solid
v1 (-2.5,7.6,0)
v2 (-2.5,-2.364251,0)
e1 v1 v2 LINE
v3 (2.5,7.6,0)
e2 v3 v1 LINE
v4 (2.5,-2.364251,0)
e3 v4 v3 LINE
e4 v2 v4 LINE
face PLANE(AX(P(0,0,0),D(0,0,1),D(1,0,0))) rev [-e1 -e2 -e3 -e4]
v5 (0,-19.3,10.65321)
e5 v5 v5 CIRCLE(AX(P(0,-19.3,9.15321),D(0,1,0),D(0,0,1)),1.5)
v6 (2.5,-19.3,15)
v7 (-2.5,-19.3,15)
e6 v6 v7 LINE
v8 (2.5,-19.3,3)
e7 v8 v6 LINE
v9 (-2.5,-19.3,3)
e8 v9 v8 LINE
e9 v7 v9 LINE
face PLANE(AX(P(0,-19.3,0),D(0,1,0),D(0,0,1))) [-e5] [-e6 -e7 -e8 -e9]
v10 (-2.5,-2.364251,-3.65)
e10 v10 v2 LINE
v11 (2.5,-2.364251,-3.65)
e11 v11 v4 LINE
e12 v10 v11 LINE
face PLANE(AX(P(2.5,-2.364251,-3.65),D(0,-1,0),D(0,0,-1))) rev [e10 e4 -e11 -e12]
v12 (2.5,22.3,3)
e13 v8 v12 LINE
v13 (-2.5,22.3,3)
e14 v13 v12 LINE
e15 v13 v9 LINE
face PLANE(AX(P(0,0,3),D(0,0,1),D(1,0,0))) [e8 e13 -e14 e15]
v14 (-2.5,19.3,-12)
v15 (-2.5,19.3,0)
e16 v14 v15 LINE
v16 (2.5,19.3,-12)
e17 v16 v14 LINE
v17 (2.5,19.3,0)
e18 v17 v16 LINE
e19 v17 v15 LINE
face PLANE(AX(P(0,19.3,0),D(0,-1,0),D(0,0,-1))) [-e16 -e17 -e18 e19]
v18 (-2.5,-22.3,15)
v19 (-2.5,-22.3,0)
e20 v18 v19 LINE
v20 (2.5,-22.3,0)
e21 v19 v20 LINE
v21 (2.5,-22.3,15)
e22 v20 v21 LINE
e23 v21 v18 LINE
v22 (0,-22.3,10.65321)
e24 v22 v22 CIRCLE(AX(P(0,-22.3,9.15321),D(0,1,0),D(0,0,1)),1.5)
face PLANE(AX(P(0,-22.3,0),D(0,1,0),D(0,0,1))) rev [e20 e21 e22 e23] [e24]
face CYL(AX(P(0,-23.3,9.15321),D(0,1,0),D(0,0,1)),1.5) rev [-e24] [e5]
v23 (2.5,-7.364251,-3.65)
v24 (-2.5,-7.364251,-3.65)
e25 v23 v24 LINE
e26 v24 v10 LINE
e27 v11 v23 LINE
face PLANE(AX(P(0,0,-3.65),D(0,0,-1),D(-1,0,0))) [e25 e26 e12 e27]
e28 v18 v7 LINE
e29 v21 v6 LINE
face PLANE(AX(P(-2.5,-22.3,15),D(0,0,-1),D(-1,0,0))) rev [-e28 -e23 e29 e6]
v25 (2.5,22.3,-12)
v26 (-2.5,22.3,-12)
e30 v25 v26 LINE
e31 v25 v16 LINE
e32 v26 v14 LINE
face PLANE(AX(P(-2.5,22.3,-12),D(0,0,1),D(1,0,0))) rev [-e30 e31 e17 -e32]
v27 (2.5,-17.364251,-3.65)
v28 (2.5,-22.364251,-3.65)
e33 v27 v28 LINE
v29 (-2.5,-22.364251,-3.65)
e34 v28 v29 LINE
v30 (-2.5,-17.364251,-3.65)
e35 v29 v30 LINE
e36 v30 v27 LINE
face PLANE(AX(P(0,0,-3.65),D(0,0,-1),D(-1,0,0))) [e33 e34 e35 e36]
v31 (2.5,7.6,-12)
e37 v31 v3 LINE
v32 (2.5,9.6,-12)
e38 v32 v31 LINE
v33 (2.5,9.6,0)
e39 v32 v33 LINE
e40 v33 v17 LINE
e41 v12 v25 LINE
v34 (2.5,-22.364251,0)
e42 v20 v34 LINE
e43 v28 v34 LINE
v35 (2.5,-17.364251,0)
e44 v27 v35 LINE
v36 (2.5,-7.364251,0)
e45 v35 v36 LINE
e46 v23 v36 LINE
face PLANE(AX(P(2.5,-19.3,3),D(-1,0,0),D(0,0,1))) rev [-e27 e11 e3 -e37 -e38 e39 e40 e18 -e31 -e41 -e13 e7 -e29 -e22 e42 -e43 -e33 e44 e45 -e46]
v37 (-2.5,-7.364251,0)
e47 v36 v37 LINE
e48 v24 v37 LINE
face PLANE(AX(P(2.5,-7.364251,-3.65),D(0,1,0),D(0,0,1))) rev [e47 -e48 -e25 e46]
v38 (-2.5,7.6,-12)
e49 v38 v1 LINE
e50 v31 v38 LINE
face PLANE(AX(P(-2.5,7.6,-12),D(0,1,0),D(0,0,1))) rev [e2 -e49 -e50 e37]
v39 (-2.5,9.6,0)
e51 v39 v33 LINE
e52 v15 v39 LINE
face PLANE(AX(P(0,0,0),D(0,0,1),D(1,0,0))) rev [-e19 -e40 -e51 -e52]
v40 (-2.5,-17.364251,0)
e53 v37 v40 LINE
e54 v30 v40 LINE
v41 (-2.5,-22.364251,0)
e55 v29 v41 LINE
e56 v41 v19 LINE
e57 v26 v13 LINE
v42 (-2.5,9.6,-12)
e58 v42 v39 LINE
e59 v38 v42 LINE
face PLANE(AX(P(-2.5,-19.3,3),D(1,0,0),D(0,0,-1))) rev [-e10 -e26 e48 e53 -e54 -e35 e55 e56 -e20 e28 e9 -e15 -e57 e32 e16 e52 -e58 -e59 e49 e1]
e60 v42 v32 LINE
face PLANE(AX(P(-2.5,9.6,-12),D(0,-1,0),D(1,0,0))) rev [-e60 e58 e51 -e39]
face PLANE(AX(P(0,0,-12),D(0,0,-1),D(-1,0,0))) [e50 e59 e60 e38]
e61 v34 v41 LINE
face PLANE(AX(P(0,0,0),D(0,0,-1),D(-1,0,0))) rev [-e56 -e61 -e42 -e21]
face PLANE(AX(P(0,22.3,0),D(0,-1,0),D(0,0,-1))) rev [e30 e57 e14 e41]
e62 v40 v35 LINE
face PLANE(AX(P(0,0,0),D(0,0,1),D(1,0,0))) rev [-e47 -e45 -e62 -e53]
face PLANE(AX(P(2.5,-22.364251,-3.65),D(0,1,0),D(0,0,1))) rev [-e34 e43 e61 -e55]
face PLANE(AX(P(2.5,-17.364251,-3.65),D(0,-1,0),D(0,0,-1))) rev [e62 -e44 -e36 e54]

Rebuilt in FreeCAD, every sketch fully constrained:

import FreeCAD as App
import Part
import Sketcher

V = App.Vector
Q = App.Units.Quantity

doc = App.newDocument("Part")
params = doc.addObject("Spreadsheet::Sheet", "Params")
for row, (alias, value) in enumerate([
    ("sketch1_width", "5 mm"),
    ("sketch1_height", "38.6 mm"),
    ("pad1_length", "3 mm"),
    ("sketch2_width", "5 mm"),
    ("sketch2_height", "15 mm"),
    ("pad2_length", "3 mm"),
    ("sketch3_diameter", "3 mm"),
    ("pocket1_length", "4 mm"),
    ("sketch4_width", "5 mm"),
    ("sketch4_height", "15 mm"),
    ("pad3_length", "3 mm"),
    ("sketch5_width", "5 mm"),
    ("sketch5_height", "2 mm"),
    ("pad4_length", "12 mm"),
    ("sketch6_width", "5 mm"),
    ("pad5_length", "3.65 mm"),
], start=1):
    params.set(f"A{row}", alias)
    params.set(f"B{row}", "=" + value)
    params.setAlias(f"B{row}", alias)

body = doc.addObject("PartDesign::Body", "Body")

# Sketch on XY plane
sketch1 = body.newObject("Sketcher::SketchObject", "Sketch")
sketch1.AttachmentSupport = (doc.getObject("XY_Plane"), [""])
sketch1.MapMode = "FlatFace"
sketch1.addGeometry([
    Part.LineSegment(V(-2, 19, 0), V(-2, -19, 0)),
    Part.LineSegment(V(-2, -19, 0), V(2, -19, 0)),
    Part.LineSegment(V(2, -19, 0), V(2, 19, 0)),
    Part.LineSegment(V(2, 19, 0), V(-2, 19, 0)),
], False)
sketch1.addConstraint([
    Sketcher.Constraint("Coincident", 0, 2, 1, 1),
    Sketcher.Constraint("Coincident", 1, 2, 2, 1),
    Sketcher.Constraint("Coincident", 2, 2, 3, 1),
    Sketcher.Constraint("Coincident", 3, 2, 0, 1),
    Sketcher.Constraint("Vertical", 0),
    Sketcher.Constraint("Horizontal", 1),
    Sketcher.Constraint("Vertical", 2),
    Sketcher.Constraint("Horizontal", 3),
    Sketcher.Constraint("Symmetric", 0, 2, 2, 2, -1, 1),
    Sketcher.Constraint("DistanceX", 1, 1, 1, 2, Q("5 mm")),
    Sketcher.Constraint("DistanceY", 0, 2, 0, 1, Q("38.6 mm")),
])
sketch1.setExpression("Constraints[9]", "Params.sketch1_width")
sketch1.setExpression("Constraints[10]", "Params.sketch1_height")
pad1 = body.newObject("PartDesign::Pad", "Pad")
pad1.Profile = sketch1
pad1.setExpression("Length", "Params.pad1_length")

# Sketch on XZ plane
sketch2 = body.newObject("Sketcher::SketchObject", "Sketch001")
sketch2.AttachmentSupport = (doc.getObject("XZ_Plane"), [""])
sketch2.MapMode = "FlatFace"
sketch2.AttachmentOffset = App.Placement(V(0, 0, 19.3), App.Rotation())
sketch2.addGeometry([
    Part.LineSegment(V(-2, 15, 0), V(-2, 0, 0)),
    Part.LineSegment(V(-2, 0, 0), V(2, 0, 0)),
    Part.LineSegment(V(2, 0, 0), V(2, 15, 0)),
    Part.LineSegment(V(2, 15, 0), V(-2, 15, 0)),
], False)
sketch2.addConstraint([
    Sketcher.Constraint("Coincident", 0, 2, 1, 1),
    Sketcher.Constraint("Coincident", 1, 2, 2, 1),
    Sketcher.Constraint("Coincident", 2, 2, 3, 1),
    Sketcher.Constraint("Coincident", 3, 2, 0, 1),
    Sketcher.Constraint("Vertical", 0),
    Sketcher.Constraint("Horizontal", 1),
    Sketcher.Constraint("Vertical", 2),
    Sketcher.Constraint("Horizontal", 3),
    Sketcher.Constraint("Symmetric", 0, 2, 1, 2, -1, 1),
    Sketcher.Constraint("DistanceX", 1, 1, 1, 2, Q("5 mm")),
    Sketcher.Constraint("DistanceY", 0, 2, 0, 1, Q("15 mm")),
])
sketch2.setExpression("Constraints[9]", "Params.sketch2_width")
sketch2.setExpression("Constraints[10]", "Params.sketch2_height")
pad2 = body.newObject("PartDesign::Pad", "Pad001")
pad2.Profile = sketch2
pad2.setExpression("Length", "Params.pad2_length")

# Sketch on XZ plane
sketch3 = body.newObject("Sketcher::SketchObject", "Sketch002")
sketch3.AttachmentSupport = (doc.getObject("XZ_Plane"), [""])
sketch3.MapMode = "FlatFace"
sketch3.AttachmentOffset = App.Placement(V(0, 0, 19.3), App.Rotation())
sketch3.addGeometry(Part.Circle(V(0, 9.2, 0), V(0, 0, 1), 1.5), False)
sketch3.addConstraint([
    Sketcher.Constraint("PointOnObject", 0, 3, -2),
    Sketcher.Constraint("Diameter", 0, Q("3 mm")),
    Sketcher.Constraint("DistanceY", -1, 1, 0, 3, Q("9.15321 mm")),
])
sketch3.setExpression("Constraints[1]", "Params.sketch3_diameter")
pocket1 = body.newObject("PartDesign::Pocket", "Pocket")
pocket1.Profile = sketch3
pocket1.setExpression("Length", "Params.pocket1_length")
pocket1.Reversed = True

# Sketch on XZ plane
sketch4 = body.newObject("Sketcher::SketchObject", "Sketch003")
sketch4.AttachmentSupport = (doc.getObject("XZ_Plane"), [""])
sketch4.MapMode = "FlatFace"
sketch4.AttachmentOffset = App.Placement(V(0, 0, -19.3), App.Rotation())
sketch4.addGeometry([
    Part.LineSegment(V(-2, -12, 0), V(-2, 3, 0)),
    Part.LineSegment(V(-2, 3, 0), V(2, 3, 0)),
    Part.LineSegment(V(2, 3, 0), V(2, -12, 0)),
    Part.LineSegment(V(2, -12, 0), V(-2, -12, 0)),
], False)
sketch4.addConstraint([
    Sketcher.Constraint("Coincident", 0, 2, 1, 1),
    Sketcher.Constraint("Coincident", 1, 2, 2, 1),
    Sketcher.Constraint("Coincident", 2, 2, 3, 1),
    Sketcher.Constraint("Coincident", 3, 2, 0, 1),
    Sketcher.Constraint("Vertical", 0),
    Sketcher.Constraint("Horizontal", 1),
    Sketcher.Constraint("Vertical", 2),
    Sketcher.Constraint("Horizontal", 3),
    Sketcher.Constraint("DistanceX", 1, 1, 1, 2, Q("5 mm")),
    Sketcher.Constraint("DistanceY", 0, 1, 0, 2, Q("15 mm")),
    Sketcher.Constraint("DistanceY", -1, 1, 0, 2, Q("3 mm")),
    Sketcher.Constraint("DistanceX", 0, 2, -1, 1, Q("2.5 mm")),
])
sketch4.setExpression("Constraints[8]", "Params.sketch4_width")
sketch4.setExpression("Constraints[9]", "Params.sketch4_height")
pad3 = body.newObject("PartDesign::Pad", "Pad002")
pad3.Profile = sketch4
pad3.setExpression("Length", "Params.pad3_length")
pad3.Reversed = True

# Sketch on XY plane
sketch5 = body.newObject("Sketcher::SketchObject", "Sketch004")
sketch5.AttachmentSupport = (doc.getObject("XY_Plane"), [""])
sketch5.MapMode = "FlatFace"
sketch5.addGeometry([
    Part.LineSegment(V(2.5, 9.6, 0), V(2.5, 7.6, 0)),
    Part.LineSegment(V(2.5, 7.6, 0), V(-2.5, 7.6, 0)),
    Part.LineSegment(V(-2.5, 7.6, 0), V(-2.5, 9.6, 0)),
    Part.LineSegment(V(-2.5, 9.6, 0), V(2.5, 9.6, 0)),
], False)
sketch5.addConstraint([
    Sketcher.Constraint("Coincident", 0, 2, 1, 1),
    Sketcher.Constraint("Coincident", 1, 2, 2, 1),
    Sketcher.Constraint("Coincident", 2, 2, 3, 1),
    Sketcher.Constraint("Coincident", 3, 2, 0, 1),
    Sketcher.Constraint("Vertical", 0),
    Sketcher.Constraint("Horizontal", 1),
    Sketcher.Constraint("Vertical", 2),
    Sketcher.Constraint("Horizontal", 3),
    Sketcher.Constraint("DistanceX", 1, 2, 1, 1, Q("5 mm")),
    Sketcher.Constraint("DistanceY", 0, 2, 0, 1, Q("2 mm")),
    Sketcher.Constraint("DistanceX", -1, 1, 0, 2, Q("2.5 mm")),
    Sketcher.Constraint("DistanceY", -1, 1, 0, 2, Q("7.6 mm")),
])
sketch5.setExpression("Constraints[8]", "Params.sketch5_width")
sketch5.setExpression("Constraints[9]", "Params.sketch5_height")
pad4 = body.newObject("PartDesign::Pad", "Pad003")
pad4.Profile = sketch5
pad4.setExpression("Length", "Params.pad4_length")
pad4.Reversed = True

# Sketch on XY plane
sketch6 = body.newObject("Sketcher::SketchObject", "Sketch005")
sketch6.AttachmentSupport = (doc.getObject("XY_Plane"), [""])
sketch6.MapMode = "FlatFace"
sketch6.addGeometry([
    Part.LineSegment(V(2, -2, 0), V(2, -7, 0)),  # 0
    Part.LineSegment(V(2, -7, 0), V(-2, -7, 0)),  # 1
    Part.LineSegment(V(-2, -7, 0), V(-2, -2, 0)),  # 2
    Part.LineSegment(V(-2, -2, 0), V(2, -2, 0)),  # 3
    Part.LineSegment(V(2, -17, 0), V(2, -22, 0)),  # 4
    Part.LineSegment(V(2, -22, 0), V(-2, -22, 0)),  # 5
    Part.LineSegment(V(-2, -22, 0), V(-2, -17, 0)),  # 6
    Part.LineSegment(V(-2, -17, 0), V(2, -17, 0)),  # 7
], False)
sketch6.addConstraint([
    Sketcher.Constraint("Coincident", 0, 2, 1, 1),
    Sketcher.Constraint("Coincident", 1, 2, 2, 1),
    Sketcher.Constraint("Coincident", 2, 2, 3, 1),
    Sketcher.Constraint("Coincident", 3, 2, 0, 1),
    Sketcher.Constraint("Coincident", 4, 2, 5, 1),
    Sketcher.Constraint("Coincident", 5, 2, 6, 1),
    Sketcher.Constraint("Coincident", 6, 2, 7, 1),
    Sketcher.Constraint("Coincident", 7, 2, 4, 1),
    Sketcher.Constraint("Vertical", 0),
    Sketcher.Constraint("Horizontal", 1),
    Sketcher.Constraint("Vertical", 2),
    Sketcher.Constraint("Horizontal", 3),
    Sketcher.Constraint("Vertical", 4),
    Sketcher.Constraint("Horizontal", 5),
    Sketcher.Constraint("Vertical", 6),
    Sketcher.Constraint("Horizontal", 7),
    Sketcher.Constraint("Vertical", 3, 2, 4, 2),
    Sketcher.Constraint("Vertical", 2, 2, 5, 2),
    Sketcher.Constraint("Equal", 7, 0),
    Sketcher.Constraint("Equal", 2, 4),
    Sketcher.Constraint("DistanceX", 1, 2, 1, 1, Q("5 mm")),
    Sketcher.Constraint("DistanceY", 4, 2, 0, 2, Q("15 mm")),
    Sketcher.Constraint("DistanceX", -1, 1, 0, 2, Q("2.5 mm")),
    Sketcher.Constraint("DistanceY", 0, 2, -1, 1, Q("7.364251 mm")),
])
sketch6.setExpression("Constraints[20]", "Params.sketch6_width")
pad5 = body.newObject("PartDesign::Pad", "Pad004")
pad5.Profile = sketch6
pad5.setExpression("Length", "Params.pad5_length")
pad5.Reversed = True

doc.recompute()
